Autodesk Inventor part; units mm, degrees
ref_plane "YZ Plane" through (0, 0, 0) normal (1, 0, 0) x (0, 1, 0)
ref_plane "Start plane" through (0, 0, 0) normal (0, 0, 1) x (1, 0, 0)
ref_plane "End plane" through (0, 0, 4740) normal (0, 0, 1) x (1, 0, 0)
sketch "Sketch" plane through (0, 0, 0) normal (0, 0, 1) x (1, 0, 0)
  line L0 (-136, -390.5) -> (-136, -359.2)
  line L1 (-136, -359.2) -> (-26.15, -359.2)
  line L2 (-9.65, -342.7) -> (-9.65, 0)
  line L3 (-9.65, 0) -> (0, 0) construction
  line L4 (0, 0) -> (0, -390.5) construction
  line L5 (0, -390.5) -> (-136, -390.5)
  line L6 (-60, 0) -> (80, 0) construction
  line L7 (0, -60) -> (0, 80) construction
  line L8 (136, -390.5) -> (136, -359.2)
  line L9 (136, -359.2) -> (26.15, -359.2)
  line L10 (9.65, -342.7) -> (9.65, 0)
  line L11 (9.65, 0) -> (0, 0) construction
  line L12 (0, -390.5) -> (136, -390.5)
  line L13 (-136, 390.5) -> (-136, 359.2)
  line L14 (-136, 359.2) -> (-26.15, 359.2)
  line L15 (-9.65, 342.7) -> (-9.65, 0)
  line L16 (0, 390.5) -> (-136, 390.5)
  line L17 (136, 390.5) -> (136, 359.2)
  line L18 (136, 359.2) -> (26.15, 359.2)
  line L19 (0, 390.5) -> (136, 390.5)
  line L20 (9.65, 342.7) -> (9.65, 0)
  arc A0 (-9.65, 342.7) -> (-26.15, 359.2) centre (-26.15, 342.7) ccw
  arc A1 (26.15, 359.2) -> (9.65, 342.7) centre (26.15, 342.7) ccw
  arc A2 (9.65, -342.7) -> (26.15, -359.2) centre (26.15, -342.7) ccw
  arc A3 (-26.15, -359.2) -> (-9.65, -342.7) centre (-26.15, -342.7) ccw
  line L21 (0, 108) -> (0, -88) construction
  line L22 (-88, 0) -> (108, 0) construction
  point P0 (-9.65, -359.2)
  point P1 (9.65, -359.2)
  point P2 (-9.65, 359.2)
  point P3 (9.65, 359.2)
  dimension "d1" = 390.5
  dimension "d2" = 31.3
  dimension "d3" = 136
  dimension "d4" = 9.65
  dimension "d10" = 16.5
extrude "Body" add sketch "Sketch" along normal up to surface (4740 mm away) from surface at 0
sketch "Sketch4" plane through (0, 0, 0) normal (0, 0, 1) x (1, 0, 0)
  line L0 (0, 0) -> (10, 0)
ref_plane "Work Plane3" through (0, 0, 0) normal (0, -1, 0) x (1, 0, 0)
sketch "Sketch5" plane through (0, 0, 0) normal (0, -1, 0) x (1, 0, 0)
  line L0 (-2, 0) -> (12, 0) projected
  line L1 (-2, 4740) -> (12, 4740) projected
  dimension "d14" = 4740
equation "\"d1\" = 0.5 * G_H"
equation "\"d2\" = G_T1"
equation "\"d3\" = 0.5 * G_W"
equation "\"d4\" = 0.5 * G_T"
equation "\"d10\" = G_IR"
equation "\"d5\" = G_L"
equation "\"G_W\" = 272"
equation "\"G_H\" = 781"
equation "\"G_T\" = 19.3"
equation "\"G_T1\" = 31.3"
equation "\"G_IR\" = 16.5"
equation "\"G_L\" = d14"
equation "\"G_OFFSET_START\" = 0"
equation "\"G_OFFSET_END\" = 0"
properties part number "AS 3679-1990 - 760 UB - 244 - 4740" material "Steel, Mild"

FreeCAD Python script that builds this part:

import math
import FreeCAD as App
import Part
import Sketcher
from FreeCAD import Vector
Q = App.Units.Quantity

doc = App.newDocument("Part")
body = doc.addObject("PartDesign::Body", "Body")

sketch1 = doc.addObject("Sketcher::SketchObject", "Sketch")
body.addObject(sketch1)
sketch1.AttachmentSupport = (doc.XY_Plane, [""])
sketch1.MapMode = "FlatFace"
sketch1.addGeometry(Part.LineSegment(Vector(-136, -359, 0), Vector(-136, -390, 0)), False)
sketch1.addGeometry(Part.LineSegment(Vector(-136, -390, 0), Vector(136, -390, 0)), False)
sketch1.addGeometry(Part.LineSegment(Vector(136, -390, 0), Vector(136, -359, 0)), False)
sketch1.addGeometry(Part.LineSegment(Vector(136, -359, 0), Vector(26, -359, 0)), False)
sketch1.addGeometry(Part.ArcOfCircle(Part.Circle(Vector(26, -343, 0), Vector(0, 0, 1), 16), math.radians(180), math.radians(270)), False)
sketch1.addGeometry(Part.LineSegment(Vector(10, -343, 0), Vector(10, 343, 0)), False)
sketch1.addGeometry(Part.ArcOfCircle(Part.Circle(Vector(26, 343, 0), Vector(0, 0, 1), 16), math.radians(90), math.radians(180)), False)
sketch1.addGeometry(Part.LineSegment(Vector(26, 359, 0), Vector(136, 359, 0)), False)
sketch1.addGeometry(Part.LineSegment(Vector(136, 359, 0), Vector(136, 390, 0)), False)
sketch1.addGeometry(Part.LineSegment(Vector(136, 390, 0), Vector(-136, 390, 0)), False)
sketch1.addGeometry(Part.LineSegment(Vector(-136, 390, 0), Vector(-136, 359, 0)), False)
sketch1.addGeometry(Part.LineSegment(Vector(-136, 359, 0), Vector(-26, 359, 0)), False)
sketch1.addGeometry(Part.ArcOfCircle(Part.Circle(Vector(-26, 343, 0), Vector(0, 0, 1), 16), math.radians(0), math.radians(90)), False)
sketch1.addGeometry(Part.LineSegment(Vector(-10, 343, 0), Vector(-10, -343, 0)), False)
sketch1.addGeometry(Part.ArcOfCircle(Part.Circle(Vector(-26, -343, 0), Vector(0, 0, 1), 16), math.radians(-90), math.radians(0)), False)
sketch1.addGeometry(Part.LineSegment(Vector(-26, -359, 0), Vector(-136, -359, 0)), False)
sketch1.addConstraint(Sketcher.Constraint("Coincident", 0, 2, 1, 1))
sketch1.addConstraint(Sketcher.Constraint("Coincident", 1, 2, 2, 1))
sketch1.addConstraint(Sketcher.Constraint("Coincident", 2, 2, 3, 1))
sketch1.addConstraint(Sketcher.Constraint("Tangent", 3, 2, 4, 2))
sketch1.addConstraint(Sketcher.Constraint("Tangent", 4, 1, 5, 1))
sketch1.addConstraint(Sketcher.Constraint("Tangent", 5, 2, 6, 2))
sketch1.addConstraint(Sketcher.Constraint("Tangent", 6, 1, 7, 1))
sketch1.addConstraint(Sketcher.Constraint("Coincident", 7, 2, 8, 1))
sketch1.addConstraint(Sketcher.Constraint("Coincident", 8, 2, 9, 1))
sketch1.addConstraint(Sketcher.Constraint("Coincident", 9, 2, 10, 1))
sketch1.addConstraint(Sketcher.Constraint("Coincident", 10, 2, 11, 1))
sketch1.addConstraint(Sketcher.Constraint("Tangent", 11, 2, 12, 2))
sketch1.addConstraint(Sketcher.Constraint("Tangent", 12, 1, 13, 1))
sketch1.addConstraint(Sketcher.Constraint("Tangent", 13, 2, 14, 2))
sketch1.addConstraint(Sketcher.Constraint("Tangent", 14, 1, 15, 1))
sketch1.addConstraint(Sketcher.Constraint("Coincident", 15, 2, 0, 1))
sketch1.addConstraint(Sketcher.Constraint("Vertical", 0))
sketch1.addConstraint(Sketcher.Constraint("Horizontal", 1))
sketch1.addConstraint(Sketcher.Constraint("Vertical", 2))
sketch1.addConstraint(Sketcher.Constraint("Horizontal", 3))
sketch1.addConstraint(Sketcher.Constraint("Vertical", 5))
sketch1.addConstraint(Sketcher.Constraint("Horizontal", 7))
sketch1.addConstraint(Sketcher.Constraint("Vertical", 8))
sketch1.addConstraint(Sketcher.Constraint("Horizontal", 9))
sketch1.addConstraint(Sketcher.Constraint("Vertical", 10))
sketch1.addConstraint(Sketcher.Constraint("Horizontal", 11))
sketch1.addConstraint(Sketcher.Constraint("Vertical", 13))
sketch1.addConstraint(Sketcher.Constraint("Horizontal", 15))
sketch1.addConstraint(Sketcher.Constraint("Equal", 4, 6))
sketch1.addConstraint(Sketcher.Constraint("Equal", 6, 12))
sketch1.addConstraint(Sketcher.Constraint("Equal", 12, 14))
sketch1.addConstraint(Sketcher.Constraint("Symmetric", 4, 3, 12, 3, -1, 1))
sketch1.addConstraint(Sketcher.Constraint("Symmetric", 0, 2, 8, 2, -1, 1))
sketch1.addConstraint(Sketcher.Constraint("Symmetric", 7, 2, 10, 2, -2))
sketch1.addConstraint(Sketcher.Constraint("Symmetric", 2, 2, 15, 2, -2))
sketch1.addConstraint(Sketcher.Constraint("Radius", 4, Q("16.5 mm")))
sketch1.addConstraint(Sketcher.Constraint("DistanceY", 0, 2, 0, 1, Q("31.3 mm")))
sketch1.addConstraint(Sketcher.Constraint("DistanceX", 0, 2, -1, 1, Q("136 mm")))
sketch1.addConstraint(Sketcher.Constraint("DistanceY", 0, 2, -1, 1, Q("390.5 mm")))
sketch1.addConstraint(Sketcher.Constraint("DistanceX", -1, 1, 4, 1, Q("9.65 mm")))
pad1 = doc.addObject("PartDesign::Pad", "Pad")
body.addObject(pad1)
pad1.Profile = sketch1
pad1.Length = 4740

doc.recompute()
